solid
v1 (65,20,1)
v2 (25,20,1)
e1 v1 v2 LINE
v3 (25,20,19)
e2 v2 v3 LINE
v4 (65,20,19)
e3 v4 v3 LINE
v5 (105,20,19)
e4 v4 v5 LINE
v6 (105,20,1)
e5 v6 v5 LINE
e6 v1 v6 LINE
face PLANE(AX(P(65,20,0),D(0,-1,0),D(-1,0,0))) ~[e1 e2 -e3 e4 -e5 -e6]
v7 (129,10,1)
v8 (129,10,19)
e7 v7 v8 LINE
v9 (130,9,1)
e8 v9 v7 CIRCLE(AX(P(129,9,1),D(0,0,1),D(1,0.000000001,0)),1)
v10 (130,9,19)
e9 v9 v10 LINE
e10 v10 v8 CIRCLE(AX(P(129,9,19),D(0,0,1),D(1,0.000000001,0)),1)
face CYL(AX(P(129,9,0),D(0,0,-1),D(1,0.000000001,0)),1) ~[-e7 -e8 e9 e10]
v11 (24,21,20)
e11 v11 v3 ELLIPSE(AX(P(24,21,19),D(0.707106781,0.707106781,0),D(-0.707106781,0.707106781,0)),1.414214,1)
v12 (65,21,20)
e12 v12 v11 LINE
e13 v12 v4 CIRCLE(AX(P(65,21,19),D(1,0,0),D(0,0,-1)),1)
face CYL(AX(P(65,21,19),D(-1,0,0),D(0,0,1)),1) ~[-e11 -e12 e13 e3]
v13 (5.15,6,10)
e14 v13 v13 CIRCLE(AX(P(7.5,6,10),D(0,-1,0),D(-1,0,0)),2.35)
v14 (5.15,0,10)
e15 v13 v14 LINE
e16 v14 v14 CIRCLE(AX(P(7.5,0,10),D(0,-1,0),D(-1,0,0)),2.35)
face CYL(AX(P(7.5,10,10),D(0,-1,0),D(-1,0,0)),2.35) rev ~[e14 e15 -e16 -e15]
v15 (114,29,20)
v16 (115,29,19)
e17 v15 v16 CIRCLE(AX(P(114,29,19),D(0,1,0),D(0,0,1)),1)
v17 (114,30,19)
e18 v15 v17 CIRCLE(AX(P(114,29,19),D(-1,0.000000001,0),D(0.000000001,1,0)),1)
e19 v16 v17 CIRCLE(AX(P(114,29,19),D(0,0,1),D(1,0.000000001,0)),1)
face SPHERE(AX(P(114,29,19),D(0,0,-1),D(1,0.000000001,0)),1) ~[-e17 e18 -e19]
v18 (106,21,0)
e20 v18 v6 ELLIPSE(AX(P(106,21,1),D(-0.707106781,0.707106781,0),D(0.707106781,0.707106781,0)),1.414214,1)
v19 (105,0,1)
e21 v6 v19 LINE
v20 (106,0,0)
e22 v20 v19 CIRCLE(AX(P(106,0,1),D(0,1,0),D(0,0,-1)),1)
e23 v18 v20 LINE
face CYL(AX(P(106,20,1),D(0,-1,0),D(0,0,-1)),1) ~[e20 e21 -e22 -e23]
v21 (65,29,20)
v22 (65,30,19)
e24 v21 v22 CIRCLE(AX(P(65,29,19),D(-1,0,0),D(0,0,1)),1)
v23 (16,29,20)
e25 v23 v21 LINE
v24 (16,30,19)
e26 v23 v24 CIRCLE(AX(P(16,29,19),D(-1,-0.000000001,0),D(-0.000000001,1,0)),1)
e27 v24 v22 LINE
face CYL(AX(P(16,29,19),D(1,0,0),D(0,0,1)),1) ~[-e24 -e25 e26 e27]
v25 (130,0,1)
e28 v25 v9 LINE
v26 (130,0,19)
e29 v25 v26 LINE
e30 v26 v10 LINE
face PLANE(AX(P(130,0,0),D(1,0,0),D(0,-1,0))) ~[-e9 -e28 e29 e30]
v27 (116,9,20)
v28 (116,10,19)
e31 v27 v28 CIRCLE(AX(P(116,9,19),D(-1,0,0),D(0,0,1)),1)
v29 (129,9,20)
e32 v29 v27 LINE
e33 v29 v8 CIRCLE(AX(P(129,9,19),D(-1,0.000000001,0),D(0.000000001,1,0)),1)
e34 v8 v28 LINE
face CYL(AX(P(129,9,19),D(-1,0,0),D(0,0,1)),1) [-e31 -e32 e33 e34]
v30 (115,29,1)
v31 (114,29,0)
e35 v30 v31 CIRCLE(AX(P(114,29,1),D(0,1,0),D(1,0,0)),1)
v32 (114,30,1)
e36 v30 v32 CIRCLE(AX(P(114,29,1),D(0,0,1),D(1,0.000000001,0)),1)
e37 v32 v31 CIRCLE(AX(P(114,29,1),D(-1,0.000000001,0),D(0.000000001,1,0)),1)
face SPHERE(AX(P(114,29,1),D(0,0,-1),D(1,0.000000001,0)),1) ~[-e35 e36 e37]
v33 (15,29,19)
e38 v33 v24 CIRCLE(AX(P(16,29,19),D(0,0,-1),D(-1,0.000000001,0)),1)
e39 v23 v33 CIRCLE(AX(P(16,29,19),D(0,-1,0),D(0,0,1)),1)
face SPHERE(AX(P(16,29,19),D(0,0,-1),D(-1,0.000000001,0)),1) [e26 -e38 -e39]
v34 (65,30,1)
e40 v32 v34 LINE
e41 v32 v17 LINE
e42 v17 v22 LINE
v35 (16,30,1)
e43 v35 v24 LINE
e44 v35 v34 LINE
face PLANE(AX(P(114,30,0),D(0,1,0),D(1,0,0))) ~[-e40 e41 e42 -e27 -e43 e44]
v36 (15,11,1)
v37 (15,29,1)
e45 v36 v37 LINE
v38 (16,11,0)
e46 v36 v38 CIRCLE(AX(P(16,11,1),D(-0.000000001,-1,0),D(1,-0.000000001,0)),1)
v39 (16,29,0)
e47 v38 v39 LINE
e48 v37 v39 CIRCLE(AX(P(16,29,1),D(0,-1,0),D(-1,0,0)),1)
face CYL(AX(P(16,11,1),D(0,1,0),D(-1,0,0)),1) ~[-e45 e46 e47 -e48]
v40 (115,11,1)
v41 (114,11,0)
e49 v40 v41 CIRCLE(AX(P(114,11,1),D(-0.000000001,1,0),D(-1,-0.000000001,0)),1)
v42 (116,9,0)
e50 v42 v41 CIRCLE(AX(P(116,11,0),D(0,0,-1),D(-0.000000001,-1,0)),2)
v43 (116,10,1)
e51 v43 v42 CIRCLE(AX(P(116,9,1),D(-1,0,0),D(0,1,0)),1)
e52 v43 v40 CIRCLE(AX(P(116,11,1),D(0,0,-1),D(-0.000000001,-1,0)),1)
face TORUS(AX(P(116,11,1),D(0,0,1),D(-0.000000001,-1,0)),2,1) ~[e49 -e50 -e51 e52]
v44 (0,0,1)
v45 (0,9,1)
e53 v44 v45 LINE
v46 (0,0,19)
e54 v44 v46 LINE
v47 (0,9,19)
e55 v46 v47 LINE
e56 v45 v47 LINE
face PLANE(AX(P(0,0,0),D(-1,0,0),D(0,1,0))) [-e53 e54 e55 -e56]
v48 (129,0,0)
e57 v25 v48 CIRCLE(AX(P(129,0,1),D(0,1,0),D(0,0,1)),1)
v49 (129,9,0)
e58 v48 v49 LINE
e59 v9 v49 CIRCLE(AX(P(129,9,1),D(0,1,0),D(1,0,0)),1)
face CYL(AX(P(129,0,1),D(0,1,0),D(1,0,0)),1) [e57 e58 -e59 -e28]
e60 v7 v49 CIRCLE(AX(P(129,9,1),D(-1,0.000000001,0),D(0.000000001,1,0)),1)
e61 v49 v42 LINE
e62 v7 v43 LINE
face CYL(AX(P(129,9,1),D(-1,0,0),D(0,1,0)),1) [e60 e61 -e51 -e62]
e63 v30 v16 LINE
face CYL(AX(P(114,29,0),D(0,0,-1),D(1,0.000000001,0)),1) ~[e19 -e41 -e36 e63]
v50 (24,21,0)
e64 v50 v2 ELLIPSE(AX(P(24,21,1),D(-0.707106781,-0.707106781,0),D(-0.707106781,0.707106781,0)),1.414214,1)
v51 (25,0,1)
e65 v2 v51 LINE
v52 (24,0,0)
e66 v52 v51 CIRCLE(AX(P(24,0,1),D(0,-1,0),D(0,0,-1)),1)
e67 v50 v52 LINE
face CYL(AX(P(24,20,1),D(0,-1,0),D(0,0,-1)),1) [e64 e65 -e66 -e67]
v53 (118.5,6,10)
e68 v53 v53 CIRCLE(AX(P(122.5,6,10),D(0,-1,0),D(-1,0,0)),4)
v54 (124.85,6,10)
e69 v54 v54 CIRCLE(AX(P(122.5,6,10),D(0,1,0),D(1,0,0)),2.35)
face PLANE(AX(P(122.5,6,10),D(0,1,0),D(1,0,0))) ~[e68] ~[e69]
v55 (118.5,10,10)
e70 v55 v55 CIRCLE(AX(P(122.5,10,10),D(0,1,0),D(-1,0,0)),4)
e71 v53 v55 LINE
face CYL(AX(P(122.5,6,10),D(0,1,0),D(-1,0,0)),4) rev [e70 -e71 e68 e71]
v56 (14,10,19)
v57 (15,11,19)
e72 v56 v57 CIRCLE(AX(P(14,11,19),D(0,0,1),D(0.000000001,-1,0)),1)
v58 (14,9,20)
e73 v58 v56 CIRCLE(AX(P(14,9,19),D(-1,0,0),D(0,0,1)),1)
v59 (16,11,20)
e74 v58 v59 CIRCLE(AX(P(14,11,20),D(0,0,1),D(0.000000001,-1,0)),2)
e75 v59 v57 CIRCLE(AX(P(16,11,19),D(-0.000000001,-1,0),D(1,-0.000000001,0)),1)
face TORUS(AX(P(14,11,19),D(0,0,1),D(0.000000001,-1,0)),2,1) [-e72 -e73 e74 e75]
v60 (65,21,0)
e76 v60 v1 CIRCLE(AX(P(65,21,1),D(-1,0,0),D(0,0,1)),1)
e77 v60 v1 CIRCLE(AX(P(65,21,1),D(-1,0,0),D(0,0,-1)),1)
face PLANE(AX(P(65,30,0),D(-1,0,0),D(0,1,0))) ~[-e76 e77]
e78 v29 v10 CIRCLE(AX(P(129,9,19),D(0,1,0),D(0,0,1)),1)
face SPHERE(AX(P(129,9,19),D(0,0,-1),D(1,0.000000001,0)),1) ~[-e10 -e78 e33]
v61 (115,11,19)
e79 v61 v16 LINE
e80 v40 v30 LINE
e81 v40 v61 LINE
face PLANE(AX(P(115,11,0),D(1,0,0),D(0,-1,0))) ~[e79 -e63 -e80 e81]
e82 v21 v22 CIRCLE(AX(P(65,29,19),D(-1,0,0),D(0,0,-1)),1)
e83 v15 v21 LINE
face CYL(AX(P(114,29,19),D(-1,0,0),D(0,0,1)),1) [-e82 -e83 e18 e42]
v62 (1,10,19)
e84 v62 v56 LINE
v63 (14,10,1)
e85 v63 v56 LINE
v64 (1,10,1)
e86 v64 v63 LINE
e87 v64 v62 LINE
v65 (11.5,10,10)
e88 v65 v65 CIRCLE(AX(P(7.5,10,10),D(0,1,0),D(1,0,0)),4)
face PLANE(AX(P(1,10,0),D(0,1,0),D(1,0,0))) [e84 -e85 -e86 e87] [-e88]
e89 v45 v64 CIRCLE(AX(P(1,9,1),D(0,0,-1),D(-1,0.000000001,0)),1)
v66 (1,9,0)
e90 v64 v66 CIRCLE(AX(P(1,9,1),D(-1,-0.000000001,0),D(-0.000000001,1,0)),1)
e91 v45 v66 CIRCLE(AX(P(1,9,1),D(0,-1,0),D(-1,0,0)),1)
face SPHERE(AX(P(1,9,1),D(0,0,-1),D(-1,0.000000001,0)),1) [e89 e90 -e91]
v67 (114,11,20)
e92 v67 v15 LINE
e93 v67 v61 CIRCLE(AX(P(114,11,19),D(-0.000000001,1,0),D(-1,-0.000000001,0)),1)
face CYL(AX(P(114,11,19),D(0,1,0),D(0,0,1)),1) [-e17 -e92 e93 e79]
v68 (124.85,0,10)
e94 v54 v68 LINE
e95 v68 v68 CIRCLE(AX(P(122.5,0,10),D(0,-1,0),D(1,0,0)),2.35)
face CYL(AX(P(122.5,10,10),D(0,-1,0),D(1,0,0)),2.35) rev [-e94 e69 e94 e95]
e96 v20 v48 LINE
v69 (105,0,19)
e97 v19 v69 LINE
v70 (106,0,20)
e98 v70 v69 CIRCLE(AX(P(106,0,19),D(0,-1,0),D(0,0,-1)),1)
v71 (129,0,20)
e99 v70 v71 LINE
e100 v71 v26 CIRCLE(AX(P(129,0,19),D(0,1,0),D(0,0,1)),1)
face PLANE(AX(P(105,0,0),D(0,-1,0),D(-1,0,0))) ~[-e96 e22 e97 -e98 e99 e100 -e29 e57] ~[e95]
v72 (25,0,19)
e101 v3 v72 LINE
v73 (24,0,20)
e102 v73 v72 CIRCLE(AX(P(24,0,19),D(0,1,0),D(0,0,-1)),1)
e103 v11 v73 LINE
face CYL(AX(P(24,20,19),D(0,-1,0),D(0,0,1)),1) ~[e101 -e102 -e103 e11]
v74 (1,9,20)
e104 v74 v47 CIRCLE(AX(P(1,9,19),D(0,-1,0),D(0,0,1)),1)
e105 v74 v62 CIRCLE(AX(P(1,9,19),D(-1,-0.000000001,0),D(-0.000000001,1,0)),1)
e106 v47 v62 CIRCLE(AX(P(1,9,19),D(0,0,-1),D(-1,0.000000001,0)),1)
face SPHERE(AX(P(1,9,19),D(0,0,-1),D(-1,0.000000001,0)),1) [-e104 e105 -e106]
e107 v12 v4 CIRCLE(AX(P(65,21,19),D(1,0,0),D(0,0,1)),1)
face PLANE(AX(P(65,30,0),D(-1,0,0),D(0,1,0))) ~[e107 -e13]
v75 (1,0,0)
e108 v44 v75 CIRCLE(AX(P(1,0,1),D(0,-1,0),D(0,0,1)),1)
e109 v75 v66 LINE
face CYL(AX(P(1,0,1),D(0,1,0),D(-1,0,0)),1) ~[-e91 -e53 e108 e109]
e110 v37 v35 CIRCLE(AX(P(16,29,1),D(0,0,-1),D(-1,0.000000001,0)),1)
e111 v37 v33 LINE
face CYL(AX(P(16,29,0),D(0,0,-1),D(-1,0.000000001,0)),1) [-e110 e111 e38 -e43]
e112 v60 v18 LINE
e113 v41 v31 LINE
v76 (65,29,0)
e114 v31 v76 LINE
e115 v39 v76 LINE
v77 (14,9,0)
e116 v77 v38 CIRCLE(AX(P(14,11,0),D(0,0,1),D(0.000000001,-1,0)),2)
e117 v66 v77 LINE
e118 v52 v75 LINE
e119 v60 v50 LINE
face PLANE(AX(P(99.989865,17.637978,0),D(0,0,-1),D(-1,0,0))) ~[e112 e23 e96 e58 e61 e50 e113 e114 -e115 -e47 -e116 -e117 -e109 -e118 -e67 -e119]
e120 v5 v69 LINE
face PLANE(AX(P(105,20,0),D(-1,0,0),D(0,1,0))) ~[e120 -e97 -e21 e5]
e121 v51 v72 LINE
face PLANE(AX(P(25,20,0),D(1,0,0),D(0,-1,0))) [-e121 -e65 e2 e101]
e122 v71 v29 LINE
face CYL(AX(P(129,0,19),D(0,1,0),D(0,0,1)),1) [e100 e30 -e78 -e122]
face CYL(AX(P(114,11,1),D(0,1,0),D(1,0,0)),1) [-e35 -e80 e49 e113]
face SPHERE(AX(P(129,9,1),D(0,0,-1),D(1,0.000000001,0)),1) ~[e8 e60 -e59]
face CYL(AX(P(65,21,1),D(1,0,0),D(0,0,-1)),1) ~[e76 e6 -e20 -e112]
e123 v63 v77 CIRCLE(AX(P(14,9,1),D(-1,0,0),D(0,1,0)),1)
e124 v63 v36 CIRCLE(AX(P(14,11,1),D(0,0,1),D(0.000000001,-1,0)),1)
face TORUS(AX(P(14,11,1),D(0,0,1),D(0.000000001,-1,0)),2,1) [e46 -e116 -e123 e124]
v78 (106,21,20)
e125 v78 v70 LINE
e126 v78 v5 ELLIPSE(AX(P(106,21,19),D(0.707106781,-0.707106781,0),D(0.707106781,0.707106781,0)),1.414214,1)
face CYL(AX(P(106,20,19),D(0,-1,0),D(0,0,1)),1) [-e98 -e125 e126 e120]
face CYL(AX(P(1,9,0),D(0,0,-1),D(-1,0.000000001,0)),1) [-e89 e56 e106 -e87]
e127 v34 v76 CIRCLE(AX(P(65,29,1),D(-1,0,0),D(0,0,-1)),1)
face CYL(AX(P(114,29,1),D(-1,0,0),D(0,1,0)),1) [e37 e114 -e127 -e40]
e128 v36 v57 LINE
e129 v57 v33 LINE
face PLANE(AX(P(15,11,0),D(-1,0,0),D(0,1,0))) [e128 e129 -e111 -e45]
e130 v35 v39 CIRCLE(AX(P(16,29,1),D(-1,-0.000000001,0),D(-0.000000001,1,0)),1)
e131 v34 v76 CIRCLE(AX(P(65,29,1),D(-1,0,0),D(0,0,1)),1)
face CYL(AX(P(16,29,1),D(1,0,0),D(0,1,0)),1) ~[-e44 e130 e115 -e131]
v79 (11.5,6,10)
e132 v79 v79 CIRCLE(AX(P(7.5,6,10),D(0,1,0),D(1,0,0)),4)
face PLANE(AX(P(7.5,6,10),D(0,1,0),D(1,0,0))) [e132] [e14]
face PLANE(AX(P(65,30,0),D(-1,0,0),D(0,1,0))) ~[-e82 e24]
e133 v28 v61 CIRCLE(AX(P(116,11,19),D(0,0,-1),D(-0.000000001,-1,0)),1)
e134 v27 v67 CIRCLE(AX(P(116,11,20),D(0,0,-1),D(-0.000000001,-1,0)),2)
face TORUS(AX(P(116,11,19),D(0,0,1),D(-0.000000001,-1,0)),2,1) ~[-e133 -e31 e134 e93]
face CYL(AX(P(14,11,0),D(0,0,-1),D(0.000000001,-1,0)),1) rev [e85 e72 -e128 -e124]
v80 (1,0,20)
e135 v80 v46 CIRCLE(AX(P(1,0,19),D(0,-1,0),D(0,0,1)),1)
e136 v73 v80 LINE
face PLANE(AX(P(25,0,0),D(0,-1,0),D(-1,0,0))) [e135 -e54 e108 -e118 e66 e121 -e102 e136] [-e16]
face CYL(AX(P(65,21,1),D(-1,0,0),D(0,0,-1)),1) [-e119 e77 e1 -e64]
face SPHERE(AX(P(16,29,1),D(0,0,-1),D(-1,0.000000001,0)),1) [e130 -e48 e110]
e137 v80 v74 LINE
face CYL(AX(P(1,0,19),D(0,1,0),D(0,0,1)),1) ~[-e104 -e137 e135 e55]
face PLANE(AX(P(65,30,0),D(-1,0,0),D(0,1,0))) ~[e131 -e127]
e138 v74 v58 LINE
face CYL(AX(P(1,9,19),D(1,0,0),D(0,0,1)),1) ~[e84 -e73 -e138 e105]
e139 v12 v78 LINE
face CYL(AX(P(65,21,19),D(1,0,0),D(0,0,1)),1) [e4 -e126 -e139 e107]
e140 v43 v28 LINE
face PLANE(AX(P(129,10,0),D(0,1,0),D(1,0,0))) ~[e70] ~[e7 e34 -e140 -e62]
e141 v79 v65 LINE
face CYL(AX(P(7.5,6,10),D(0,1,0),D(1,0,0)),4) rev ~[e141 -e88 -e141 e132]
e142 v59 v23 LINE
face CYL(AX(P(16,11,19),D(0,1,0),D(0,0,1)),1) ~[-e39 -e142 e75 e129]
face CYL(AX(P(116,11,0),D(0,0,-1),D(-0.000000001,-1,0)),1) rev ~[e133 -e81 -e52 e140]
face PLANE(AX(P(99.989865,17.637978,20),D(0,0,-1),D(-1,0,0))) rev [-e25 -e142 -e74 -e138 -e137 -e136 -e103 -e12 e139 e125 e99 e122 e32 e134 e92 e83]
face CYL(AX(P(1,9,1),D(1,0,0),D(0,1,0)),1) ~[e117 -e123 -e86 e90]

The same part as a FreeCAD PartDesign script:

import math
import FreeCAD as App
import Part
import Sketcher

V = App.Vector


def edges_at(feature, points):
    """Names of the edges that pass closest to the given points."""
    edges = feature.Shape.Edges
    near = lambda p: min(range(len(edges)), key=lambda i: edges[i].distToShape(Part.Vertex(*p))[0])
    return sorted({f"Edge{near(p) + 1}" for p in points})

doc = App.newDocument("Part")
body = doc.addObject("PartDesign::Body", "Body")

# Sketch on XY plane
sketch1 = body.newObject("Sketcher::SketchObject", "Sketch")
sketch1.AttachmentSupport = (doc.getObject("XY_Plane"), [""])
sketch1.MapMode = "FlatFace"
sketch1.addGeometry([
    Part.LineSegment(V(0, 9, 0), V(0, 0, 0)),  # 0
    Part.LineSegment(V(0, 0, 0), V(25, 0, 0)),  # 1
    Part.LineSegment(V(25, 0, 0), V(25, 20, 0)),  # 2
    Part.LineSegment(V(25, 20, 0), V(65, 20, 0)),  # 3
    Part.LineSegment(V(65, 20, 0), V(65, 30, 0)),  # 4
    Part.LineSegment(V(65, 30, 0), V(16, 30, 0)),  # 5
    Part.ArcOfCircle(Part.Circle(V(16, 29, 0), V(0, 0, 1), 1), math.radians(90), math.radians(180)),  # 6
    Part.LineSegment(V(15, 29, 0), V(15, 11, 0)),  # 7
    Part.ArcOfCircle(Part.Circle(V(14, 11, 0), V(0, 0, 1), 1), math.radians(-90), math.radians(0)),  # 8
    Part.LineSegment(V(14, 10, 0), V(1, 10, 0)),  # 9
    Part.ArcOfCircle(Part.Circle(V(1, 9, 0), V(0, 0, 1), 1), math.radians(90), math.radians(180)),  # 10
], False)
sketch1.addConstraint([
    Sketcher.Constraint("Coincident", 0, 2, 1, 1),
    Sketcher.Constraint("Coincident", 1, 2, 2, 1),
    Sketcher.Constraint("Coincident", 2, 2, 3, 1),
    Sketcher.Constraint("Coincident", 3, 2, 4, 1),
    Sketcher.Constraint("Coincident", 4, 2, 5, 1),
    Sketcher.Constraint("Tangent", 5, 2, 6, 1),
    Sketcher.Constraint("Tangent", 6, 2, 7, 1),
    Sketcher.Constraint("Tangent", 7, 2, 8, 2),
    Sketcher.Constraint("Tangent", 8, 1, 9, 1),
    Sketcher.Constraint("Tangent", 9, 2, 10, 1),
    Sketcher.Constraint("Tangent", 10, 2, 0, 1),
    Sketcher.Constraint("Vertical", 0),
    Sketcher.Constraint("Horizontal", 1),
    Sketcher.Constraint("Vertical", 2),
    Sketcher.Constraint("Horizontal", 3),
    Sketcher.Constraint("Vertical", 4),
    Sketcher.Constraint("Horizontal", 5),
    Sketcher.Constraint("Vertical", 7),
    Sketcher.Constraint("Horizontal", 9),
    Sketcher.Constraint("Coincident", 0, 2, -1, 1),
    Sketcher.Constraint("Equal", 6, 8),
    Sketcher.Constraint("Equal", 8, 10),
    Sketcher.Constraint("Radius", 6, 1.0),
    Sketcher.Constraint("DistanceX", 1, 1, 1, 2, 25.0),
    Sketcher.Constraint("DistanceX", 3, 1, 3, 2, 40.0),
    Sketcher.Constraint("DistanceX", 5, 2, 5, 1, 49.0),
    Sketcher.Constraint("DistanceY", 0, 2, 0, 1, 9.0),
    Sketcher.Constraint("DistanceY", 2, 1, 2, 2, 20.0),
    Sketcher.Constraint("DistanceY", 4, 1, 4, 2, 10.0),
])
pad1 = body.newObject("PartDesign::Pad", "Pad")
pad1.Profile = sketch1
pad1.Length = 20

# Sketch on XZ plane
sketch2 = body.newObject("Sketcher::SketchObject", "Sketch001")
sketch2.AttachmentSupport = (doc.getObject("XZ_Plane"), [""])
sketch2.MapMode = "FlatFace"
sketch2.AttachmentOffset = App.Placement(V(0, 0, -10), App.Rotation())
sketch2.addGeometry(Part.Circle(V(7.5, 10, 0), V(0, 0, 1), 2.35), False)
sketch2.addConstraint([
    Sketcher.Constraint("Diameter", 0, 4.7),
    Sketcher.Constraint("DistanceY", -1, 1, 0, 3, 10.0),
    Sketcher.Constraint("DistanceX", -1, 1, 0, 3, 7.5),
])
doc.recompute()
hole = body.newObject("PartDesign::Hole", "Hole")
hole.Profile = sketch2
hole.ThreadType = "None"
hole.Diameter = 4.7
hole.DepthType = "ThroughAll"
hole.HoleCutType = "Counterbore"
hole.HoleCutDiameter = 8
hole.HoleCutDepth = 4
hole.Reversed = True
doc.recompute()

fillet = body.newObject("PartDesign::Fillet", "Fillet")
fillet.Base = (hole, edges_at(hole, [
    (45, 20, 20),
    (0, 4.5, 0),
    (0.293, 9.707, 0),
    (7.5, 10, 0),
    (14.707, 10.293, 0),
    (15, 20, 0),
    (15.293, 29.707, 0),
    (40.5, 30, 0),
    (45, 20, 0),
    (25, 10, 0),
    (40.5, 30, 20),
    (15.293, 29.707, 20),
    (15, 20, 20),
    (14.707, 10.293, 20),
    (7.5, 10, 20),
    (0.293, 9.707, 20),
    (0, 4.5, 20),
    (25, 10, 20),
]))
fillet.Radius = 1
doc.recompute()

datumplane = body.newObject("PartDesign::Plane", "DatumPlane")
datumplane.AttachmentSupport = (doc.getObject("YZ_Plane"), [""])
datumplane.MapMode = "FlatFace"
datumplane.AttachmentOffset = App.Placement(V(0, 0, 65), App.Rotation())
mirrored = body.newObject("PartDesign::Mirrored", "Mirrored")
mirrored.Originals = [pad1, hole]
mirrored.MirrorPlane = (datumplane, [""])
body.Tip = mirrored
doc.recompute()

fillet2 = body.newObject("PartDesign::Fillet", "Fillet001")
fillet2.Base = (mirrored, edges_at(mirrored, [
    (85, 20, 20),
    (130, 4.5, 0),
    (129.707, 9.707, 0),
    (122.5, 10, 0),
    (115.293, 10.293, 0),
    (115, 20, 0),
    (114.707, 29.707, 0),
    (89.5, 30, 0),
    (85, 20, 0),
    (105, 10, 0),
    (89.5, 30, 20),
    (114.707, 29.707, 20),
    (115, 20, 20),
    (115.293, 10.293, 20),
    (122.5, 10, 20),
    (129.707, 9.707, 20),
    (130, 4.5, 20),
    (105, 10, 20),
]))
fillet2.Radius = 1

doc.recompute()
